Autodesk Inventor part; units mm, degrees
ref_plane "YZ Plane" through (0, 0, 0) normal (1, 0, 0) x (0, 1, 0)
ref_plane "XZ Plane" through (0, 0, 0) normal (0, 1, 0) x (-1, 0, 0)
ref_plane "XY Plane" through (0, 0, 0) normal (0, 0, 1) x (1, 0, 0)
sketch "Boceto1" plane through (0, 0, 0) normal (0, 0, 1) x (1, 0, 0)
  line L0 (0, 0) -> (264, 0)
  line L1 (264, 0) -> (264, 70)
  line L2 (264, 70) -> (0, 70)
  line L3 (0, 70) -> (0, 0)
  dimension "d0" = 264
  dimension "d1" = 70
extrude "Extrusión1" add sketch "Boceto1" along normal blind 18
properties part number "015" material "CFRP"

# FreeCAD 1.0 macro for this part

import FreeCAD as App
import Part
import Sketcher
from FreeCAD import Vector


def add_polygon(sketch, points):
    """Adds a closed chain of lines whose ends are joined by coincident constraints."""
    first, n = sketch.GeometryCount, len(points)
    for a, b in zip(points, points[1:] + points[:1]):
        sketch.addGeometry(Part.LineSegment(App.Vector(*a, 0), App.Vector(*b, 0)), False)
    for i in range(n):
        sketch.addConstraint(Sketcher.Constraint("Coincident", first + i, 2, first + (i + 1) % n, 1))

doc = App.newDocument("Part")
body = doc.addObject("PartDesign::Body", "Body")

sketch1 = doc.addObject("Sketcher::SketchObject", "Sketch")
body.addObject(sketch1)
sketch1.AttachmentSupport = (doc.XY_Plane, [""])
sketch1.MapMode = "FlatFace"
add_polygon(sketch1, [(0, 70), (0, 0), (264, 0), (264, 70)])
sketch1.addConstraint(Sketcher.Constraint("Vertical", 0))
sketch1.addConstraint(Sketcher.Constraint("Horizontal", 1))
sketch1.addConstraint(Sketcher.Constraint("Vertical", 2))
sketch1.addConstraint(Sketcher.Constraint("Horizontal", 3))
sketch1.addConstraint(Sketcher.Constraint("Coincident", 0, 2, -1, 1))
sketch1.addConstraint(Sketcher.Constraint("DistanceX", 1, 1, 1, 2, 264.0))
sketch1.addConstraint(Sketcher.Constraint("DistanceY", 0, 2, 0, 1, 70.0))
pad1 = doc.addObject("PartDesign::Pad", "Pad")
body.addObject(pad1)
pad1.Profile = sketch1
pad1.Length = 18

doc.recompute()
